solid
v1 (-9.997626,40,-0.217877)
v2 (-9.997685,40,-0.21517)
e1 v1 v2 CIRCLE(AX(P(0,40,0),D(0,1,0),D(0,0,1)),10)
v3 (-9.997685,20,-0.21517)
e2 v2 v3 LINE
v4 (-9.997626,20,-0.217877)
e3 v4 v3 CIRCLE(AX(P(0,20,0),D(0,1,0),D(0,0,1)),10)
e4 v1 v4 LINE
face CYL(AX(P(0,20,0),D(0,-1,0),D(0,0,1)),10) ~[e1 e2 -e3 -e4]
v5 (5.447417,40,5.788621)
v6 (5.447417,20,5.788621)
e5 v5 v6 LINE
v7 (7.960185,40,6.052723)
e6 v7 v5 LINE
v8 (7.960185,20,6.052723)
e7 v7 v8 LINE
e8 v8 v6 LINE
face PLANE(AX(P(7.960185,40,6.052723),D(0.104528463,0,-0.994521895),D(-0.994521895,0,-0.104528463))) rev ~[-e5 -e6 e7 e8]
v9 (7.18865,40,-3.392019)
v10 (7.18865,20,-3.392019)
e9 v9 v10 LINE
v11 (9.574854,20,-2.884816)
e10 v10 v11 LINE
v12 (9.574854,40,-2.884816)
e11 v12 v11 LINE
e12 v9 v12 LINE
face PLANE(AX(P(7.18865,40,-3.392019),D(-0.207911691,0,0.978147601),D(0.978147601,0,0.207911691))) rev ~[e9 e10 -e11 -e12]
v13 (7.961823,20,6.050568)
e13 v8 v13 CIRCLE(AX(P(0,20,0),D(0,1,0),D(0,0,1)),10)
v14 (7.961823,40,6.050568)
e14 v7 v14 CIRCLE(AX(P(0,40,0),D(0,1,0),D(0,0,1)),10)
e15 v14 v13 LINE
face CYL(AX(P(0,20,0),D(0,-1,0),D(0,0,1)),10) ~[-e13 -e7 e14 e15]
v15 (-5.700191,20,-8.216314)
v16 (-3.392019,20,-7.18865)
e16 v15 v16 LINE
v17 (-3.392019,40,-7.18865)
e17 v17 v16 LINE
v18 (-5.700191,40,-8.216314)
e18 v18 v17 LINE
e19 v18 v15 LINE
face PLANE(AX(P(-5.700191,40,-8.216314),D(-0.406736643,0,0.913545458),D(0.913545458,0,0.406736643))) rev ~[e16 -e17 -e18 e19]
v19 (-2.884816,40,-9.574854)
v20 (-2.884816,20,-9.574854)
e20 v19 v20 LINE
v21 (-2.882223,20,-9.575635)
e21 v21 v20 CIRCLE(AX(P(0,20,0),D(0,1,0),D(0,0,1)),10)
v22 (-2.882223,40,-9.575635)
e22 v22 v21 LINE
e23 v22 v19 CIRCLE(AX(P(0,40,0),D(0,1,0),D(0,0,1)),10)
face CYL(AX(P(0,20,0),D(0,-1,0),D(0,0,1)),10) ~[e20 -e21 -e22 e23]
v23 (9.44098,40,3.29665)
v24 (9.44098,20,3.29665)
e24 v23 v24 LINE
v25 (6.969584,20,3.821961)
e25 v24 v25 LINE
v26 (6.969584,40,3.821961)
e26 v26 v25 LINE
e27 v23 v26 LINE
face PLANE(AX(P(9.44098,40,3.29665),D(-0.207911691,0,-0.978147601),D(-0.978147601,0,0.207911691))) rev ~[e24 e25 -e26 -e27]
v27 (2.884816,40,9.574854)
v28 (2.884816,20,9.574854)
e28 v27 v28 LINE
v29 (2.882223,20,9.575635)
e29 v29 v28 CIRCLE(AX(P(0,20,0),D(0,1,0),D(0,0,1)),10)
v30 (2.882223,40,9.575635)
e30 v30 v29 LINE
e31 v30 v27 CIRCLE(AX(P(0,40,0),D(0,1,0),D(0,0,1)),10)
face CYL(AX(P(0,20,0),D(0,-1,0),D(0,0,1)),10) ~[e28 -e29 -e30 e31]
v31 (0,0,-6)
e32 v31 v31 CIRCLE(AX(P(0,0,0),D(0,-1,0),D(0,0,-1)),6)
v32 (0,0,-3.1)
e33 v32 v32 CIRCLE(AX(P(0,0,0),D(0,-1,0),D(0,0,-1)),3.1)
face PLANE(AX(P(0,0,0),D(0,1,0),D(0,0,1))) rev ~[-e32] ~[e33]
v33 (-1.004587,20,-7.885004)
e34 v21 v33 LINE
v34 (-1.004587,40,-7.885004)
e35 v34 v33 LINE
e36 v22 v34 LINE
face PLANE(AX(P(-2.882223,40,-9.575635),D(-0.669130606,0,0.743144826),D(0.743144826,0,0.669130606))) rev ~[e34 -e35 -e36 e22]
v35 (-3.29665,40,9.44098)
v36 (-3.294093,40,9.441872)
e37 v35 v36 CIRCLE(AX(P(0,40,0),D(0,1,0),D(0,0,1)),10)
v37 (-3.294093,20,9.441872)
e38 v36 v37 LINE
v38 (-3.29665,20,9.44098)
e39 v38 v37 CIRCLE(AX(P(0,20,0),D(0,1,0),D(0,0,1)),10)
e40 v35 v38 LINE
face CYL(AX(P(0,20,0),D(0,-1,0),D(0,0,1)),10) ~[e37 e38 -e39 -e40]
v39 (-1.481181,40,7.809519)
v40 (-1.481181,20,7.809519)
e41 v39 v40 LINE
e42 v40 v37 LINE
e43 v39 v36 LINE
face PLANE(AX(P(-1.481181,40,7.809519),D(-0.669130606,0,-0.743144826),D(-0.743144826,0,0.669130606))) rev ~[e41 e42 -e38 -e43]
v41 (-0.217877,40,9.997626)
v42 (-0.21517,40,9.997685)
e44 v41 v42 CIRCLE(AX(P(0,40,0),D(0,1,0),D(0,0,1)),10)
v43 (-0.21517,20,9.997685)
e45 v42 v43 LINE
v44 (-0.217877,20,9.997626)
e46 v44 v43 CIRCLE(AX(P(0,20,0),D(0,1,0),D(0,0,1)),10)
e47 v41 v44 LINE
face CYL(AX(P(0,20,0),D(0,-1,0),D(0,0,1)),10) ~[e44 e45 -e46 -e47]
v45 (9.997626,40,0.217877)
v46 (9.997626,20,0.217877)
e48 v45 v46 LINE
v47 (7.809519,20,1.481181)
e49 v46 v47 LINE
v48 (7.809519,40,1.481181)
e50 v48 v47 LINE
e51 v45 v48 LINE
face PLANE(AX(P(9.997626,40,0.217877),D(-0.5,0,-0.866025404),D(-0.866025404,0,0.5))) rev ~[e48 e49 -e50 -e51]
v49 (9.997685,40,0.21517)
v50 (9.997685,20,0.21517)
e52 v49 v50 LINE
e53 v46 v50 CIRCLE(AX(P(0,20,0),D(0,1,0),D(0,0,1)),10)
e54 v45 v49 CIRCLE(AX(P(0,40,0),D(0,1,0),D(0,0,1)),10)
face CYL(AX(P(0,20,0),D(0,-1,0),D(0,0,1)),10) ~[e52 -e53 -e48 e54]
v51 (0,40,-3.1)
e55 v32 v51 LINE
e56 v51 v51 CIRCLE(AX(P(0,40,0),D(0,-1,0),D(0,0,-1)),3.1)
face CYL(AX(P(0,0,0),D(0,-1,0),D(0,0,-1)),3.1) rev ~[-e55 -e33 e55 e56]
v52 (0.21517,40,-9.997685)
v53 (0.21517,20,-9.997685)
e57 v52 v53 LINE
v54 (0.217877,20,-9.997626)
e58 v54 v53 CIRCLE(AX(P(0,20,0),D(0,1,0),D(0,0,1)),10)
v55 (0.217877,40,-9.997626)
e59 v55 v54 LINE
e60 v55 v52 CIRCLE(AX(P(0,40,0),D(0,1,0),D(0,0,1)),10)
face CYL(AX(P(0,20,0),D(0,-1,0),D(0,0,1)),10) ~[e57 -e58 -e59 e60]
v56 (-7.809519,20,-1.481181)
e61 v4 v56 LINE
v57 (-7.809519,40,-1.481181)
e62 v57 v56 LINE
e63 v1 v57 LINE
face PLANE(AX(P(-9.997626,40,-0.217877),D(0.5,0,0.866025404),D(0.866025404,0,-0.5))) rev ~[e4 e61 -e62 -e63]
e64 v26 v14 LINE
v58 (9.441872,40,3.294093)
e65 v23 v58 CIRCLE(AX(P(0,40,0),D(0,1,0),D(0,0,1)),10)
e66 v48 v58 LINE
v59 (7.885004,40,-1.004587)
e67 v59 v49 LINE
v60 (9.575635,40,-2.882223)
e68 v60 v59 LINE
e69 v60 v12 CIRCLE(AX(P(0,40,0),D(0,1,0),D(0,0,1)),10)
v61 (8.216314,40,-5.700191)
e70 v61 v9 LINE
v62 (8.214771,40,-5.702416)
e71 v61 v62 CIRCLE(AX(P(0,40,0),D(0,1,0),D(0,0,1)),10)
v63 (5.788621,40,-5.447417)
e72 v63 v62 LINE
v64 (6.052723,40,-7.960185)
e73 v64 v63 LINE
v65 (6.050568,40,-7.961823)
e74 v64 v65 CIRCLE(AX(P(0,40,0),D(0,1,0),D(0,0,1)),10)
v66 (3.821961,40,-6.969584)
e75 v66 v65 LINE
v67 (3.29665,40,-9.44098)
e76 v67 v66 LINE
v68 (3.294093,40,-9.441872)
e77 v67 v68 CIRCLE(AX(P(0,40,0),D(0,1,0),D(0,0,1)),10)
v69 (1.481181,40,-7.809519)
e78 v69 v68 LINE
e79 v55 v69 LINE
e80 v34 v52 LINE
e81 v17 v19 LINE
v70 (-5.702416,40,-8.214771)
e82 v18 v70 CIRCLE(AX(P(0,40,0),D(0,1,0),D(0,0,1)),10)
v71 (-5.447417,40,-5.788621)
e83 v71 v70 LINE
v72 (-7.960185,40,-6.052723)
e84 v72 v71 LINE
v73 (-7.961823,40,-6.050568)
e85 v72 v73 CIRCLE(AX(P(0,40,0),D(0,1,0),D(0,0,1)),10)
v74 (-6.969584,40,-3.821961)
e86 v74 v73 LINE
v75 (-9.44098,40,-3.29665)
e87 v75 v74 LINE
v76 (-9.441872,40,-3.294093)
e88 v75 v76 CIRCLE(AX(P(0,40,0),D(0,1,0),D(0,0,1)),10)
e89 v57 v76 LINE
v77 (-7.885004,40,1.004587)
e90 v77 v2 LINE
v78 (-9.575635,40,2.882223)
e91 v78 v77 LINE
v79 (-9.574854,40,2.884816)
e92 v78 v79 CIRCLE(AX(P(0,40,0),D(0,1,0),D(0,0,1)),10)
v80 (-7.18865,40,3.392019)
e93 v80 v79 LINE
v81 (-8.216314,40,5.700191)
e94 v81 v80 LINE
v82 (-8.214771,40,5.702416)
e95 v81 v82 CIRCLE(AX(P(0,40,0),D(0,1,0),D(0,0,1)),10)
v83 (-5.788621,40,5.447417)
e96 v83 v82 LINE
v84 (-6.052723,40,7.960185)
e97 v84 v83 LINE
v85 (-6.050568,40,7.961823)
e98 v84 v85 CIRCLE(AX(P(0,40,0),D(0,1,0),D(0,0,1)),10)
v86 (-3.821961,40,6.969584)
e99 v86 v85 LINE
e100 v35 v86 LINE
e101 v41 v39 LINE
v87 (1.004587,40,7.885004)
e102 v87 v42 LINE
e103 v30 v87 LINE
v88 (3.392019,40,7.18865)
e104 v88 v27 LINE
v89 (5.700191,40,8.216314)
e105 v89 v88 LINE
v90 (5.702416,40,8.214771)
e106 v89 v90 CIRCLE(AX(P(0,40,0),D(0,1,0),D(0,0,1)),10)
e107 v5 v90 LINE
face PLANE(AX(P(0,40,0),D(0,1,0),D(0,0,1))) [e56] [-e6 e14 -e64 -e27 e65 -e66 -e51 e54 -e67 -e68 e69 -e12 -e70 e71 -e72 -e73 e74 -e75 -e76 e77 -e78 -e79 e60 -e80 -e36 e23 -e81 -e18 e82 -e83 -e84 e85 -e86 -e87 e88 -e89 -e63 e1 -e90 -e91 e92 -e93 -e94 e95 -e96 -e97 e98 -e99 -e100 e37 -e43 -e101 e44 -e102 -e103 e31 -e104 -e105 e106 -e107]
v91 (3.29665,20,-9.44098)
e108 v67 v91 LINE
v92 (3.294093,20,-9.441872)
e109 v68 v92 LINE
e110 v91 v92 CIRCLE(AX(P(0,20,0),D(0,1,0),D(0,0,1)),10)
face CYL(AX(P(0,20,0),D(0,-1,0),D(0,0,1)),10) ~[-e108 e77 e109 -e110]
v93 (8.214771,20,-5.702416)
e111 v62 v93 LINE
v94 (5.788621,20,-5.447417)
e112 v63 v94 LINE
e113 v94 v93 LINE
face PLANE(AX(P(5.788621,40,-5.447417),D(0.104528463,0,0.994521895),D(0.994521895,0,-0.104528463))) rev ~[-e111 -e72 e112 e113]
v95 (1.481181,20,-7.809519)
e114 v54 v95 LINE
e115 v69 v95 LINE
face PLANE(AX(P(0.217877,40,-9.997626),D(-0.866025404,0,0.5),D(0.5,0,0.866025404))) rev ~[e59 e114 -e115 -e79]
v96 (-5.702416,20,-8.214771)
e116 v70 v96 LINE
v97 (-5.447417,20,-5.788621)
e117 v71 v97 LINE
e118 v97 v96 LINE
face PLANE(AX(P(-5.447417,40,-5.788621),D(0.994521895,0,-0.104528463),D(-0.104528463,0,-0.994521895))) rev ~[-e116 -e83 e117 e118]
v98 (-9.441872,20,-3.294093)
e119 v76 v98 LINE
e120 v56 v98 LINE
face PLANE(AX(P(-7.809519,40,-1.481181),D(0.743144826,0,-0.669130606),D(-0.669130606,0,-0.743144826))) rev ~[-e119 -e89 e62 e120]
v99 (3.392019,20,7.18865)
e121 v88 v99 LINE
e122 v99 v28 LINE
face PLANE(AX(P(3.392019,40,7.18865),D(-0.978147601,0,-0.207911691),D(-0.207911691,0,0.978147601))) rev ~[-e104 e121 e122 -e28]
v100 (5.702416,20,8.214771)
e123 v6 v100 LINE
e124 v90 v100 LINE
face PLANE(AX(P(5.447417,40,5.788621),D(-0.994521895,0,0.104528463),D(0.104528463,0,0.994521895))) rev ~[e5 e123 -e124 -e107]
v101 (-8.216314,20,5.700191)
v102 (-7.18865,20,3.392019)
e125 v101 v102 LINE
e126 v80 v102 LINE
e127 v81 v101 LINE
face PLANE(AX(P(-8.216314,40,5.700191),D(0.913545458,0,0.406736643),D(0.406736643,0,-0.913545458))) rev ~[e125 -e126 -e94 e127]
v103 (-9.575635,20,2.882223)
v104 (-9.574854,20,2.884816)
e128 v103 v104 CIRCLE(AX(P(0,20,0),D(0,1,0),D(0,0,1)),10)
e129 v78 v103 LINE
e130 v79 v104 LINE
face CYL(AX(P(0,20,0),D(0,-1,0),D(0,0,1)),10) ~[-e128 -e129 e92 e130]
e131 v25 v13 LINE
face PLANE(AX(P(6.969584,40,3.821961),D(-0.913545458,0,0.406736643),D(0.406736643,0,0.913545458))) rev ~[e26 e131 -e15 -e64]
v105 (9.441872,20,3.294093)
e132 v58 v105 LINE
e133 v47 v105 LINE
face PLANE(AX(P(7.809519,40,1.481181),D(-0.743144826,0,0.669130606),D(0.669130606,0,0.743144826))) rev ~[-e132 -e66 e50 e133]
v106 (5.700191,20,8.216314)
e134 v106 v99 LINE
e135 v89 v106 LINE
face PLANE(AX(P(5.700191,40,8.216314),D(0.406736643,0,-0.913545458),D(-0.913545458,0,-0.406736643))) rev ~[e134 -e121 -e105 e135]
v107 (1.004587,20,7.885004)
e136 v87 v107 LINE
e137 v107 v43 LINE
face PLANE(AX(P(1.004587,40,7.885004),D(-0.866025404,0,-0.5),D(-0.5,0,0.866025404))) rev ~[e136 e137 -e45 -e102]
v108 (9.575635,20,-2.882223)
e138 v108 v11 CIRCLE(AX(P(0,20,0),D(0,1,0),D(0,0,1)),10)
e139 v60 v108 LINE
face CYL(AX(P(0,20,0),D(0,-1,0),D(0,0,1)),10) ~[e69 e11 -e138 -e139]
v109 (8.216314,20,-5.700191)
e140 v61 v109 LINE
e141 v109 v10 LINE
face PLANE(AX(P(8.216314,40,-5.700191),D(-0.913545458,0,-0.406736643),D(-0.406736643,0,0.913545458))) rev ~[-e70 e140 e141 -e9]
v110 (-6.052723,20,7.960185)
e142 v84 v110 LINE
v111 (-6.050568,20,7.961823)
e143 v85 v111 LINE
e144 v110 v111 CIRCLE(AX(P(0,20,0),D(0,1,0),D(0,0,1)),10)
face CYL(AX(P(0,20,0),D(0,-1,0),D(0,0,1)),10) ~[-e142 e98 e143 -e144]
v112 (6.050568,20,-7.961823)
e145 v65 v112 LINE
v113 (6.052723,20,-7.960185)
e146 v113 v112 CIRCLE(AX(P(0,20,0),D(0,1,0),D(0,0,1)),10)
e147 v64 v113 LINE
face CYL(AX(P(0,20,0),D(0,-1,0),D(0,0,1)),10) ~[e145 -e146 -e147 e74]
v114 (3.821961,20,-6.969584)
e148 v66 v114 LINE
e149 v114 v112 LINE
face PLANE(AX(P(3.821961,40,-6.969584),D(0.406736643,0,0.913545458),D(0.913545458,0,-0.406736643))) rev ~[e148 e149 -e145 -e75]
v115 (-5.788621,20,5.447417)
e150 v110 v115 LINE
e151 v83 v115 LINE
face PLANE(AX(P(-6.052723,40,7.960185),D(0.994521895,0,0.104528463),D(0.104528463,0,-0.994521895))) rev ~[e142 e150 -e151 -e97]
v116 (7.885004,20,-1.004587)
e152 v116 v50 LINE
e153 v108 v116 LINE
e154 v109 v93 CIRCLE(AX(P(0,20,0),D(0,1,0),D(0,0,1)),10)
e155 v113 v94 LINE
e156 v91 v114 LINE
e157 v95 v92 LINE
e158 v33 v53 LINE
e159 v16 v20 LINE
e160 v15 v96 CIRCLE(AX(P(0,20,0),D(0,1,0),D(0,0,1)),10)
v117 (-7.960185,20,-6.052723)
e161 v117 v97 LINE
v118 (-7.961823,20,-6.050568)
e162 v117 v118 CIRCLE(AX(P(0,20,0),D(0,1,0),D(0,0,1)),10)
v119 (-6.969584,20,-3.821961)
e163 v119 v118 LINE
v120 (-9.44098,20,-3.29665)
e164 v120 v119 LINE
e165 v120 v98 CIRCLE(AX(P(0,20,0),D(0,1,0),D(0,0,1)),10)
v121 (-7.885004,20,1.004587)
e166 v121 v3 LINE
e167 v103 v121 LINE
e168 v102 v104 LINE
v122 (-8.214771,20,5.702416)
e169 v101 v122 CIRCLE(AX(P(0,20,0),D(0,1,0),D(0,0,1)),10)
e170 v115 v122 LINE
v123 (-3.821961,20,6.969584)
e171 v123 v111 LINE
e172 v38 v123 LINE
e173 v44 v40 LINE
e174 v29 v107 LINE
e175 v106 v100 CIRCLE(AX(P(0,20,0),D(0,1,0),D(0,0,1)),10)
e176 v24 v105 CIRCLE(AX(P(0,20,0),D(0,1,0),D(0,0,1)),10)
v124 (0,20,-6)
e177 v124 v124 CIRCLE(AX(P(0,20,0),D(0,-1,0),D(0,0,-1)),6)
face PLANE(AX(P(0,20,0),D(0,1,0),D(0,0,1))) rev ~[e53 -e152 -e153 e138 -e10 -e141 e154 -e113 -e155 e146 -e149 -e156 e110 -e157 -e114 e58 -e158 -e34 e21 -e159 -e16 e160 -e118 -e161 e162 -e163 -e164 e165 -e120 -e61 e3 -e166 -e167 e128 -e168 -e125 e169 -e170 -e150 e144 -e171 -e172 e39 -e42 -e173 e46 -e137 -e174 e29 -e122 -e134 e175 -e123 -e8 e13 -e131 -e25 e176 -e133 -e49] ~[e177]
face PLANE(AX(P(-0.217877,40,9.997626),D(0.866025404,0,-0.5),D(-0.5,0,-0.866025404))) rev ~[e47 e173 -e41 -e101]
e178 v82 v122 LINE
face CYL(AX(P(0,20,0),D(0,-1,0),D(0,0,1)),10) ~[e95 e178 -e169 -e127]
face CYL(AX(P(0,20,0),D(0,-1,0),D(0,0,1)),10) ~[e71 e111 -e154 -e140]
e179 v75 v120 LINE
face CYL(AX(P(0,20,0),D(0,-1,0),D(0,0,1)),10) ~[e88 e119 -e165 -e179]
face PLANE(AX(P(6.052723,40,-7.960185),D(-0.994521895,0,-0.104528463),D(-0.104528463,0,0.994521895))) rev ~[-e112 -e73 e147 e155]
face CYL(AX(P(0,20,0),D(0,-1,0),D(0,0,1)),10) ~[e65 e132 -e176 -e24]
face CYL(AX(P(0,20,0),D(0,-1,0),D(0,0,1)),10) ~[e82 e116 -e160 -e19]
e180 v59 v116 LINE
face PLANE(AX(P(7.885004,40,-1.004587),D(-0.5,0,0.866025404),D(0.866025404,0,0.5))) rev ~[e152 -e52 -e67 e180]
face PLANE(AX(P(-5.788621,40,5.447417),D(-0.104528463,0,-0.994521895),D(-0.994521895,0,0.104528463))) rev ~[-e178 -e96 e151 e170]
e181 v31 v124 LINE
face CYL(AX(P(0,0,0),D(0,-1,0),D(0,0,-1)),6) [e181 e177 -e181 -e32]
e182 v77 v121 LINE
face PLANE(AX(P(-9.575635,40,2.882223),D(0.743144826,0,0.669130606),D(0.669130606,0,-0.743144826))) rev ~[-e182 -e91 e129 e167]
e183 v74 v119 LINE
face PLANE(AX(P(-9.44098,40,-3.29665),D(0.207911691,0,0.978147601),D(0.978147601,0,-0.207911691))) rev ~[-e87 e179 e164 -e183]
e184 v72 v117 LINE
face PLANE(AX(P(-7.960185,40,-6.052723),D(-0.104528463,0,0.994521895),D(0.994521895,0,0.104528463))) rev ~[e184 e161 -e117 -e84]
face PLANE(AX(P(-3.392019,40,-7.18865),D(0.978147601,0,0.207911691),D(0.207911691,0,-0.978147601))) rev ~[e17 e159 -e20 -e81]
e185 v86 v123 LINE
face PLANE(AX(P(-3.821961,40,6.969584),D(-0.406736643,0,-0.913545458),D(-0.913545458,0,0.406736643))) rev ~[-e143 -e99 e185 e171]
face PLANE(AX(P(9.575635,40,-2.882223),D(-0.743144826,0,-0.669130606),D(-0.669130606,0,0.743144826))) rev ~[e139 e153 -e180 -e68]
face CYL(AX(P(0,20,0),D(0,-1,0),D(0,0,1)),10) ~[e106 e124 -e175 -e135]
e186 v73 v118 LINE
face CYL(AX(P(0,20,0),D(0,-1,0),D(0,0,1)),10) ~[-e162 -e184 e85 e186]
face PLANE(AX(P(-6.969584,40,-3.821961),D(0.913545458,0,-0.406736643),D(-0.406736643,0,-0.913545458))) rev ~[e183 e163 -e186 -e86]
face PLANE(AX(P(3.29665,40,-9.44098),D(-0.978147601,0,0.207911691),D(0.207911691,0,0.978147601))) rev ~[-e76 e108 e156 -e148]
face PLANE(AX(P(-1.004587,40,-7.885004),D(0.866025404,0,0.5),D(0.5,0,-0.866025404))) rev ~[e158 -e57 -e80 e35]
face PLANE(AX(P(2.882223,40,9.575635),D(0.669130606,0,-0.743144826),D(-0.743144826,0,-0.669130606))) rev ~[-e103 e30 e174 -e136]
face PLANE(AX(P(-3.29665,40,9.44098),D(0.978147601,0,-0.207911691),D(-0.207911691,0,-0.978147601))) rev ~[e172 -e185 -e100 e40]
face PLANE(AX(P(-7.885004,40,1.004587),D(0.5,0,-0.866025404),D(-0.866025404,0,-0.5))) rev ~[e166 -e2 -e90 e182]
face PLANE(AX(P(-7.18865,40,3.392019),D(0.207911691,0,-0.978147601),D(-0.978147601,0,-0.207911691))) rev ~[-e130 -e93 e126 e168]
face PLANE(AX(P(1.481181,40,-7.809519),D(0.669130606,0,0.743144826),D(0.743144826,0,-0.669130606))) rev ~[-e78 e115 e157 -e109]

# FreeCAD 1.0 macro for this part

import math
import FreeCAD as App
import Part
import Sketcher

V = App.Vector
Q = App.Units.Quantity

doc = App.newDocument("Part")
body = doc.addObject("PartDesign::Body", "Body")

sketch1 = doc.addObject("Sketcher::SketchObject", "Sketch")
body.addObject(sketch1)
sketch1.AttachmentSupport = (doc.XZ_Plane, [""])
sketch1.MapMode = "FlatFace"
sketch1.addGeometry(Part.Circle(V(0, 0, 0), V(0, 0, 1), 7), False)
sketch1.addGeometry(Part.Circle(V(0, 0, 0), V(0, 0, 1), 3), False)
sketch1.addConstraint(Sketcher.Constraint("Coincident", 0, 3, -1, 1))
sketch1.addConstraint(Sketcher.Constraint("Coincident", 1, 3, -1, 1))
sketch1.addConstraint(Sketcher.Constraint("Diameter", 0, 14.0))
sketch1.addConstraint(Sketcher.Constraint("Diameter", 1, 6.0))
pad1 = doc.addObject("PartDesign::Pad", "Pad")
body.addObject(pad1)
pad1.Profile = sketch1
pad1.Length = 20
pad1.Reversed = True

sketch2 = doc.addObject("Sketcher::SketchObject", "Sketch001")
body.addObject(sketch2)
sketch2.AttachmentSupport = (doc.XZ_Plane, [""])
sketch2.MapMode = "FlatFace"
sketch2.AttachmentOffset = App.Placement(V(0, 0, -20), App.Rotation())
sketch2.addGeometry(Part.Circle(V(0, 0, 0), V(0, 0, 1), 10), False)
sketch2.addGeometry(Part.Circle(V(0, 0, 0), V(0, 0, 1), 3), False)
sketch2.addConstraint(Sketcher.Constraint("Coincident", 0, 3, -1, 1))
sketch2.addConstraint(Sketcher.Constraint("Coincident", 1, 3, -1, 1))
sketch2.addConstraint(Sketcher.Constraint("Diameter", 0, 20.0))
sketch2.addConstraint(Sketcher.Constraint("Diameter", 1, 6.0))
pad2 = doc.addObject("PartDesign::Pad", "Pad001")
body.addObject(pad2)
pad2.Profile = sketch2
pad2.Length = 20
pad2.Reversed = True

sketch3 = doc.addObject("Sketcher::SketchObject", "Sketch002")
body.addObject(sketch3)
sketch3.AttachmentSupport = (doc.XZ_Plane, [""])
sketch3.MapMode = "FlatFace"
sketch3.AttachmentOffset = App.Placement(V(0, 0, -40), App.Rotation())
sketch3.addGeometry(Part.LineSegment(V(1.481181, -7.809519, 0), V(3.294093, -9.441872, 0)), False)
sketch3.addGeometry(Part.ArcOfCircle(Part.Circle(V(0, 0, 0), V(0, 0, 1), 10), math.radians(-88.751559), math.radians(-70.767073)), False)
sketch3.addGeometry(Part.LineSegment(V(0.217877, -9.997626, 0), V(1.481181, -7.809519, 0)), False)
sketch3.addGeometry(Part.ArcOfCircle(Part.Circle(V(0, 0, 0), V(0, 0, 1), 10), math.radians(-70.751559), math.radians(-52.767073)), False)
sketch3.addGeometry(Part.LineSegment(V(3.29665, -9.44098, 0), V(3.821961, -6.969584, 0)), False)
sketch3.addGeometry(Part.LineSegment(V(3.821961, -6.969584, 0), V(6.050568, -7.961823, 0)), False)
sketch3.addGeometry(Part.LineSegment(V(-1.004587, -7.885004, 0), V(0.21517, -9.997685, 0)), False)
sketch3.addGeometry(Part.ArcOfCircle(Part.Circle(V(0, 0, 0), V(0, 0, 1), 10), math.radians(-106.751559), math.radians(-88.767073)), False)
sketch3.addGeometry(Part.LineSegment(V(-2.882223, -9.575635, 0), V(-1.004587, -7.885004, 0)), False)
sketch3.addGeometry(Part.ArcOfCircle(Part.Circle(V(0, 0, 0), V(0, 0, 1), 10), math.radians(-52.751559), math.radians(-34.767073)), False)
sketch3.addGeometry(Part.LineSegment(V(6.052723, -7.960185, 0), V(5.788621, -5.447417, 0)), False)
sketch3.addGeometry(Part.LineSegment(V(5.788621, -5.447417, 0), V(8.214771, -5.702416, 0)), False)
sketch3.addGeometry(Part.LineSegment(V(-3.392019, -7.18865, 0), V(-2.884816, -9.574854, 0)), False)
sketch3.addGeometry(Part.ArcOfCircle(Part.Circle(V(0, 0, 0), V(0, 0, 1), 10), math.radians(-124.751559), math.radians(-106.767073)), False)
sketch3.addGeometry(Part.LineSegment(V(-5.700191, -8.216314, 0), V(-3.392019, -7.18865, 0)), False)
sketch3.addGeometry(Part.ArcOfCircle(Part.Circle(V(0, 0, 0), V(0, 0, 1), 10), math.radians(-34.751559), math.radians(-16.767073)), False)
sketch3.addGeometry(Part.LineSegment(V(8.216314, -5.700191, 0), V(7.18865, -3.392019, 0)), False)
sketch3.addGeometry(Part.LineSegment(V(7.18865, -3.392019, 0), V(9.574854, -2.884816, 0)), False)
sketch3.addGeometry(Part.LineSegment(V(-5.447417, -5.788621, 0), V(-5.702416, -8.214771, 0)), False)
sketch3.addGeometry(Part.ArcOfCircle(Part.Circle(V(0, 0, 0), V(0, 0, 1), 10), math.radians(-142.751559), math.radians(-124.767073)), False)
sketch3.addGeometry(Part.LineSegment(V(-7.960185, -6.052723, 0), V(-5.447417, -5.788621, 0)), False)
sketch3.addGeometry(Part.ArcOfCircle(Part.Circle(V(0, 0, 0), V(0, 0, 1), 10), math.radians(-16.751559), math.radians(1.232927)), False)
sketch3.addGeometry(Part.LineSegment(V(9.575635, -2.882223, 0), V(7.885004, -1.004587, 0)), False)
sketch3.addGeometry(Part.LineSegment(V(7.885004, -1.004587, 0), V(9.997685, 0.21517, 0)), False)
sketch3.addGeometry(Part.LineSegment(V(-6.969584, -3.821961, 0), V(-7.961823, -6.050568, 0)), False)
sketch3.addGeometry(Part.ArcOfCircle(Part.Circle(V(0, 0, 0), V(0, 0, 1), 10), math.radians(-160.751559), math.radians(-142.767073)), False)
sketch3.addGeometry(Part.LineSegment(V(-9.44098, -3.29665, 0), V(-6.969584, -3.821961, 0)), False)
sketch3.addGeometry(Part.ArcOfCircle(Part.Circle(V(0, 0, 0), V(0, 0, 1), 10), math.radians(1.248441), math.radians(19.232927)), False)
sketch3.addGeometry(Part.LineSegment(V(9.997626, 0.217877, 0), V(7.809519, 1.481181, 0)), False)
sketch3.addGeometry(Part.LineSegment(V(7.809519, 1.481181, 0), V(9.441872, 3.294093, 0)), False)
sketch3.addGeometry(Part.LineSegment(V(-7.809519, -1.481181, 0), V(-9.441872, -3.294093, 0)), False)
sketch3.addGeometry(Part.ArcOfCircle(Part.Circle(V(0, 0, 0), V(0, 0, 1), 10), math.radians(-178.751559), math.radians(-160.767073)), False)
sketch3.addGeometry(Part.LineSegment(V(-9.997626, -0.217877, 0), V(-7.809519, -1.481181, 0)), False)
sketch3.addGeometry(Part.ArcOfCircle(Part.Circle(V(0, 0, 0), V(0, 0, 1), 10), math.radians(19.248441), math.radians(37.232927)), False)
sketch3.addGeometry(Part.LineSegment(V(9.44098, 3.29665, 0), V(6.969584, 3.821961, 0)), False)
sketch3.addGeometry(Part.LineSegment(V(6.969584, 3.821961, 0), V(7.961823, 6.050568, 0)), False)
sketch3.addGeometry(Part.LineSegment(V(-7.885004, 1.004587, 0), V(-9.997685, -0.21517, 0)), False)
sketch3.addGeometry(Part.ArcOfCircle(Part.Circle(V(0, 0, 0), V(0, 0, 1), 10), math.radians(163.248441), math.radians(181.232927)), False)
sketch3.addGeometry(Part.LineSegment(V(-9.575635, 2.882223, 0), V(-7.885004, 1.004587, 0)), False)
sketch3.addGeometry(Part.ArcOfCircle(Part.Circle(V(0, 0, 0), V(0, 0, 1), 10), math.radians(37.248441), math.radians(55.232927)), False)
sketch3.addGeometry(Part.LineSegment(V(7.960185, 6.052723, 0), V(5.447417, 5.788621, 0)), False)
sketch3.addGeometry(Part.LineSegment(V(5.447417, 5.788621, 0), V(5.702416, 8.214771, 0)), False)
sketch3.addGeometry(Part.LineSegment(V(-7.18865, 3.392019, 0), V(-9.574854, 2.884816, 0)), False)
sketch3.addGeometry(Part.ArcOfCircle(Part.Circle(V(0, 0, 0), V(0, 0, 1), 10), math.radians(145.248441), math.radians(163.232927)), False)
sketch3.addGeometry(Part.LineSegment(V(-8.216314, 5.700191, 0), V(-7.18865, 3.392019, 0)), False)
sketch3.addGeometry(Part.ArcOfCircle(Part.Circle(V(0, 0, 0), V(0, 0, 1), 10), math.radians(55.248441), math.radians(73.232927)), False)
sketch3.addGeometry(Part.LineSegment(V(5.700191, 8.216314, 0), V(3.392019, 7.18865, 0)), False)
sketch3.addGeometry(Part.LineSegment(V(3.392019, 7.18865, 0), V(2.884816, 9.574854, 0)), False)
sketch3.addGeometry(Part.LineSegment(V(-5.788621, 5.447417, 0), V(-8.214771, 5.702416, 0)), False)
sketch3.addGeometry(Part.ArcOfCircle(Part.Circle(V(0, 0, 0), V(0, 0, 1), 10), math.radians(127.248441), math.radians(145.232927)), False)
sketch3.addGeometry(Part.LineSegment(V(-6.052723, 7.960185, 0), V(-5.788621, 5.447417, 0)), False)
sketch3.addGeometry(Part.ArcOfCircle(Part.Circle(V(0, 0, 0), V(0, 0, 1), 10), math.radians(73.248441), math.radians(91.232927)), False)
sketch3.addGeometry(Part.LineSegment(V(2.882223, 9.575635, 0), V(1.004587, 7.885004, 0)), False)
sketch3.addGeometry(Part.LineSegment(V(1.004587, 7.885004, 0), V(-0.21517, 9.997685, 0)), False)
sketch3.addGeometry(Part.LineSegment(V(-3.821961, 6.969584, 0), V(-6.050568, 7.961823, 0)), False)
sketch3.addGeometry(Part.ArcOfCircle(Part.Circle(V(0, 0, 0), V(0, 0, 1), 10), math.radians(109.248441), math.radians(127.232927)), False)
sketch3.addGeometry(Part.LineSegment(V(-3.29665, 9.44098, 0), V(-3.821961, 6.969584, 0)), False)
sketch3.addGeometry(Part.ArcOfCircle(Part.Circle(V(0, 0, 0), V(0, 0, 1), 10), math.radians(91.248441), math.radians(109.232927)), False)
sketch3.addGeometry(Part.LineSegment(V(-0.217877, 9.997626, 0), V(-1.481181, 7.809519, 0)), False)
sketch3.addGeometry(Part.LineSegment(V(-1.481181, 7.809519, 0), V(-3.294093, 9.441872, 0)), False)
sketch3.addConstraint(Sketcher.Constraint("Coincident", 0, 2, 1, 2))
sketch3.addConstraint(Sketcher.Constraint("Coincident", 1, 1, 2, 1))
sketch3.addConstraint(Sketcher.Constraint("Coincident", 2, 2, 0, 1))
sketch3.addConstraint(Sketcher.Constraint("Coincident", 3, 1, 4, 1))
sketch3.addConstraint(Sketcher.Constraint("Coincident", 4, 2, 5, 1))
sketch3.addConstraint(Sketcher.Constraint("Coincident", 5, 2, 3, 2))
sketch3.addConstraint(Sketcher.Constraint("Coincident", 6, 2, 7, 2))
sketch3.addConstraint(Sketcher.Constraint("Coincident", 7, 1, 8, 1))
sketch3.addConstraint(Sketcher.Constraint("Coincident", 8, 2, 6, 1))
sketch3.addConstraint(Sketcher.Constraint("Coincident", 9, 1, 10, 1))
sketch3.addConstraint(Sketcher.Constraint("Coincident", 10, 2, 11, 1))
sketch3.addConstraint(Sketcher.Constraint("Coincident", 11, 2, 9, 2))
sketch3.addConstraint(Sketcher.Constraint("Coincident", 12, 2, 13, 2))
sketch3.addConstraint(Sketcher.Constraint("Coincident", 13, 1, 14, 1))
sketch3.addConstraint(Sketcher.Constraint("Coincident", 14, 2, 12, 1))
sketch3.addConstraint(Sketcher.Constraint("Coincident", 15, 1, 16, 1))
sketch3.addConstraint(Sketcher.Constraint("Coincident", 16, 2, 17, 1))
sketch3.addConstraint(Sketcher.Constraint("Coincident", 17, 2, 15, 2))
sketch3.addConstraint(Sketcher.Constraint("Coincident", 18, 2, 19, 2))
sketch3.addConstraint(Sketcher.Constraint("Coincident", 19, 1, 20, 1))
sketch3.addConstraint(Sketcher.Constraint("Coincident", 20, 2, 18, 1))
sketch3.addConstraint(Sketcher.Constraint("Coincident", 21, 1, 22, 1))
sketch3.addConstraint(Sketcher.Constraint("Coincident", 22, 2, 23, 1))
sketch3.addConstraint(Sketcher.Constraint("Coincident", 23, 2, 21, 2))
sketch3.addConstraint(Sketcher.Constraint("Coincident", 24, 2, 25, 2))
sketch3.addConstraint(Sketcher.Constraint("Coincident", 25, 1, 26, 1))
sketch3.addConstraint(Sketcher.Constraint("Coincident", 26, 2, 24, 1))
sketch3.addConstraint(Sketcher.Constraint("Coincident", 27, 1, 28, 1))
sketch3.addConstraint(Sketcher.Constraint("Coincident", 28, 2, 29, 1))
sketch3.addConstraint(Sketcher.Constraint("Coincident", 29, 2, 27, 2))
sketch3.addConstraint(Sketcher.Constraint("Coincident", 30, 2, 31, 2))
sketch3.addConstraint(Sketcher.Constraint("Coincident", 31, 1, 32, 1))
sketch3.addConstraint(Sketcher.Constraint("Coincident", 32, 2, 30, 1))
sketch3.addConstraint(Sketcher.Constraint("Coincident", 33, 1, 34, 1))
sketch3.addConstraint(Sketcher.Constraint("Coincident", 34, 2, 35, 1))
sketch3.addConstraint(Sketcher.Constraint("Coincident", 35, 2, 33, 2))
sketch3.addConstraint(Sketcher.Constraint("Coincident", 36, 2, 37, 2))
sketch3.addConstraint(Sketcher.Constraint("Coincident", 37, 1, 38, 1))
sketch3.addConstraint(Sketcher.Constraint("Coincident", 38, 2, 36, 1))
sketch3.addConstraint(Sketcher.Constraint("Coincident", 39, 1, 40, 1))
sketch3.addConstraint(Sketcher.Constraint("Coincident", 40, 2, 41, 1))
sketch3.addConstraint(Sketcher.Constraint("Coincident", 41, 2, 39, 2))
sketch3.addConstraint(Sketcher.Constraint("Coincident", 42, 2, 43, 2))
sketch3.addConstraint(Sketcher.Constraint("Coincident", 43, 1, 44, 1))
sketch3.addConstraint(Sketcher.Constraint("Coincident", 44, 2, 42, 1))
sketch3.addConstraint(Sketcher.Constraint("Coincident", 45, 1, 46, 1))
sketch3.addConstraint(Sketcher.Constraint("Coincident", 46, 2, 47, 1))
sketch3.addConstraint(Sketcher.Constraint("Coincident", 47, 2, 45, 2))
sketch3.addConstraint(Sketcher.Constraint("Coincident", 48, 2, 49, 2))
sketch3.addConstraint(Sketcher.Constraint("Coincident", 49, 1, 50, 1))
sketch3.addConstraint(Sketcher.Constraint("Coincident", 50, 2, 48, 1))
sketch3.addConstraint(Sketcher.Constraint("Coincident", 51, 1, 52, 1))
sketch3.addConstraint(Sketcher.Constraint("Coincident", 52, 2, 53, 1))
sketch3.addConstraint(Sketcher.Constraint("Coincident", 53, 2, 51, 2))
sketch3.addConstraint(Sketcher.Constraint("Coincident", 54, 2, 55, 2))
sketch3.addConstraint(Sketcher.Constraint("Coincident", 55, 1, 56, 1))
sketch3.addConstraint(Sketcher.Constraint("Coincident", 56, 2, 54, 1))
sketch3.addConstraint(Sketcher.Constraint("Coincident", 57, 1, 58, 1))
sketch3.addConstraint(Sketcher.Constraint("Coincident", 58, 2, 59, 1))
sketch3.addConstraint(Sketcher.Constraint("Coincident", 59, 2, 57, 2))
sketch3.addConstraint(Sketcher.Constraint("Coincident", 1, 3, -1, 1))
sketch3.addConstraint(Sketcher.Constraint("Coincident", 3, 3, -1, 1))
sketch3.addConstraint(Sketcher.Constraint("Coincident", 7, 3, -1, 1))
sketch3.addConstraint(Sketcher.Constraint("Coincident", 9, 3, -1, 1))
sketch3.addConstraint(Sketcher.Constraint("Coincident", 13, 3, -1, 1))
sketch3.addConstraint(Sketcher.Constraint("Coincident", 15, 3, -1, 1))
sketch3.addConstraint(Sketcher.Constraint("Coincident", 19, 3, -1, 1))
sketch3.addConstraint(Sketcher.Constraint("Coincident", 21, 3, -1, 1))
sketch3.addConstraint(Sketcher.Constraint("Coincident", 25, 3, -1, 1))
sketch3.addConstraint(Sketcher.Constraint("Coincident", 27, 3, -1, 1))
sketch3.addConstraint(Sketcher.Constraint("Coincident", 31, 3, -1, 1))
sketch3.addConstraint(Sketcher.Constraint("Coincident", 33, 3, -1, 1))
sketch3.addConstraint(Sketcher.Constraint("Coincident", 37, 3, -1, 1))
sketch3.addConstraint(Sketcher.Constraint("Coincident", 39, 3, -1, 1))
sketch3.addConstraint(Sketcher.Constraint("Coincident", 43, 3, -1, 1))
sketch3.addConstraint(Sketcher.Constraint("Coincident", 45, 3, -1, 1))
sketch3.addConstraint(Sketcher.Constraint("Coincident", 49, 3, -1, 1))
sketch3.addConstraint(Sketcher.Constraint("Coincident", 51, 3, -1, 1))
sketch3.addConstraint(Sketcher.Constraint("Coincident", 55, 3, -1, 1))
sketch3.addConstraint(Sketcher.Constraint("Coincident", 57, 3, -1, 1))
sketch3.addConstraint(Sketcher.Constraint("Equal", 1, 3))
sketch3.addConstraint(Sketcher.Constraint("Equal", 3, 7))
sketch3.addConstraint(Sketcher.Constraint("Equal", 7, 9))
sketch3.addConstraint(Sketcher.Constraint("Equal", 9, 13))
sketch3.addConstraint(Sketcher.Constraint("Equal", 13, 15))
sketch3.addConstraint(Sketcher.Constraint("Equal", 15, 19))
sketch3.addConstraint(Sketcher.Constraint("Equal", 19, 21))
sketch3.addConstraint(Sketcher.Constraint("Equal", 21, 25))
sketch3.addConstraint(Sketcher.Constraint("Equal", 25, 27))
sketch3.addConstraint(Sketcher.Constraint("Equal", 27, 31))
sketch3.addConstraint(Sketcher.Constraint("Equal", 31, 33))
sketch3.addConstraint(Sketcher.Constraint("Equal", 33, 37))
sketch3.addConstraint(Sketcher.Constraint("Equal", 37, 39))
sketch3.addConstraint(Sketcher.Constraint("Equal", 39, 43))
sketch3.addConstraint(Sketcher.Constraint("Equal", 43, 45))
sketch3.addConstraint(Sketcher.Constraint("Equal", 45, 49))
sketch3.addConstraint(Sketcher.Constraint("Equal", 49, 51))
sketch3.addConstraint(Sketcher.Constraint("Equal", 51, 55))
sketch3.addConstraint(Sketcher.Constraint("Equal", 55, 57))
sketch3.addConstraint(Sketcher.Constraint("Symmetric", 28, 2, 32, 2, -1, 1))
sketch3.addConstraint(Sketcher.Constraint("Symmetric", 26, 2, 34, 2, -1, 1))
sketch3.addConstraint(Sketcher.Constraint("Symmetric", 22, 2, 38, 2, -1, 1))
sketch3.addConstraint(Sketcher.Constraint("Symmetric", 20, 2, 40, 2, -1, 1))
sketch3.addConstraint(Sketcher.Constraint("Symmetric", 16, 2, 44, 2, -1, 1))
sketch3.addConstraint(Sketcher.Constraint("Symmetric", 14, 2, 46, 2, -1, 1))
sketch3.addConstraint(Sketcher.Constraint("Symmetric", 10, 2, 50, 2, -1, 1))
sketch3.addConstraint(Sketcher.Constraint("Symmetric", 8, 2, 52, 2, -1, 1))
sketch3.addConstraint(Sketcher.Constraint("Symmetric", 4, 2, 56, 2, -1, 1))
sketch3.addConstraint(Sketcher.Constraint("Symmetric", 2, 2, 58, 2, -1, 1))
sketch3.addConstraint(Sketcher.Constraint("Perpendicular", 14, 16))
sketch3.addConstraint(Sketcher.Constraint("Perpendicular", 12, 17))
sketch3.addConstraint(Sketcher.Constraint("Perpendicular", 11, 18))
sketch3.addConstraint(Sketcher.Constraint("Perpendicular", 10, 20))
sketch3.addConstraint(Sketcher.Constraint("Perpendicular", 8, 22))
sketch3.addConstraint(Sketcher.Constraint("Perpendicular", 6, 23))
sketch3.addConstraint(Sketcher.Constraint("Perpendicular", 5, 24))
sketch3.addConstraint(Sketcher.Constraint("Perpendicular", 4, 26))
sketch3.addConstraint(Sketcher.Constraint("Perpendicular", 2, 28))
sketch3.addConstraint(Sketcher.Constraint("Perpendicular", 0, 29))
sketch3.addConstraint(Sketcher.Constraint("Parallel", 29, 30))
sketch3.addConstraint(Sketcher.Constraint("Parallel", 28, 32))
sketch3.addConstraint(Sketcher.Constraint("Parallel", 26, 34))
sketch3.addConstraint(Sketcher.Constraint("Parallel", 24, 35))
sketch3.addConstraint(Sketcher.Constraint("Parallel", 23, 36))
sketch3.addConstraint(Sketcher.Constraint("Parallel", 22, 38))
sketch3.addConstraint(Sketcher.Constraint("Parallel", 20, 40))
sketch3.addConstraint(Sketcher.Constraint("Parallel", 18, 41))
sketch3.addConstraint(Sketcher.Constraint("Parallel", 17, 42))
sketch3.addConstraint(Sketcher.Constraint("Parallel", 16, 44))
sketch3.addConstraint(Sketcher.Constraint("Perpendicular", 44, 46))
sketch3.addConstraint(Sketcher.Constraint("Perpendicular", 42, 47))
sketch3.addConstraint(Sketcher.Constraint("Perpendicular", 41, 48))
sketch3.addConstraint(Sketcher.Constraint("Perpendicular", 40, 50))
sketch3.addConstraint(Sketcher.Constraint("Perpendicular", 38, 52))
sketch3.addConstraint(Sketcher.Constraint("Perpendicular", 36, 53))
sketch3.addConstraint(Sketcher.Constraint("Perpendicular", 35, 54))
sketch3.addConstraint(Sketcher.Constraint("Perpendicular", 34, 56))
sketch3.addConstraint(Sketcher.Constraint("Perpendicular", 32, 58))
sketch3.addConstraint(Sketcher.Constraint("Perpendicular", 30, 59))
sketch3.addConstraint(Sketcher.Constraint("Equal", 2, 4))
sketch3.addConstraint(Sketcher.Constraint("Equal", 0, 5))
sketch3.addConstraint(Sketcher.Constraint("Equal", 5, 6))
sketch3.addConstraint(Sketcher.Constraint("Equal", 4, 8))
sketch3.addConstraint(Sketcher.Constraint("Equal", 8, 10))
sketch3.addConstraint(Sketcher.Constraint("Equal", 6, 11))
sketch3.addConstraint(Sketcher.Constraint("Equal", 11, 12))
sketch3.addConstraint(Sketcher.Constraint("Equal", 10, 14))
sketch3.addConstraint(Sketcher.Constraint("Equal", 14, 16))
sketch3.addConstraint(Sketcher.Constraint("Equal", 12, 17))
sketch3.addConstraint(Sketcher.Constraint("Equal", 17, 18))
sketch3.addConstraint(Sketcher.Constraint("Equal", 16, 20))
sketch3.addConstraint(Sketcher.Constraint("Equal", 20, 22))
sketch3.addConstraint(Sketcher.Constraint("Equal", 18, 23))
sketch3.addConstraint(Sketcher.Constraint("Equal", 23, 24))
sketch3.addConstraint(Sketcher.Constraint("Equal", 22, 26))
sketch3.addConstraint(Sketcher.Constraint("Equal", 26, 28))
sketch3.addConstraint(Sketcher.Constraint("Equal", 24, 29))
sketch3.addConstraint(Sketcher.Constraint("Radius", 1, 10.0))
sketch3.addConstraint(Sketcher.Constraint("Angle", 0, Q("-42 deg")))
sketch3.addConstraint(Sketcher.Constraint("Angle", 2, Q("60 deg")))
sketch3.addConstraint(Sketcher.Constraint("Angle", 4, Q("78 deg")))
sketch3.addConstraint(Sketcher.Constraint("Angle", 5, Q("-24 deg")))
sketch3.addConstraint(Sketcher.Constraint("Angle", 6, Q("-60 deg")))
sketch3.addConstraint(Sketcher.Constraint("Angle", 8, Q("42 deg")))
sketch3.addConstraint(Sketcher.Constraint("Angle", 10, Q("96 deg")))
sketch3.addConstraint(Sketcher.Constraint("Angle", 11, Q("-6 deg")))
sketch3.addConstraint(Sketcher.Constraint("Angle", 12, Q("-78 deg")))
sketch3.addConstraint(Sketcher.Constraint("Angle", 14, Q("24 deg")))
sketch3.addConstraint(Sketcher.Constraint("Distance", 2, 2.526609))
sketch3.addConstraint(Sketcher.Constraint("DistanceX", -1, 1, 2, 2, 1.481181))
pocket1 = doc.addObject("PartDesign::Pocket", "Pocket")
body.addObject(pocket1)
pocket1.Profile = sketch3
pocket1.Length = 20
pocket1.Reversed = True

sketch4 = doc.addObject("Sketcher::SketchObject", "Sketch003")
body.addObject(sketch4)
sketch4.AttachmentSupport = (doc.XZ_Plane, [""])
sketch4.MapMode = "FlatFace"
sketch4.addGeometry(Part.Circle(V(-3.244662, -1.192158, 0), V(0, 0, 1), 21.655225), False)
sketch4.addGeometry(Part.Circle(V(0, 0, 0), V(0, 0, 1), 6), False)
sketch4.addConstraint(Sketcher.Constraint("Coincident", 1, 3, -1, 1))
sketch4.addConstraint(Sketcher.Constraint("Diameter", 1, 12.0))
sketch4.addConstraint(Sketcher.Constraint("Diameter", 0, 43.310451))
sketch4.addConstraint(Sketcher.Constraint("DistanceX", 0, 3, -1, 1, 3.244662))
sketch4.addConstraint(Sketcher.Constraint("DistanceY", 0, 3, -1, 1, 1.192158))
pocket2 = doc.addObject("PartDesign::Pocket", "Pocket001")
body.addObject(pocket2)
pocket2.Profile = sketch4
pocket2.Length = 20

sketch5 = doc.addObject("Sketcher::SketchObject", "Sketch004")
body.addObject(sketch5)
sketch5.AttachmentSupport = (doc.XZ_Plane, [""])
sketch5.MapMode = "FlatFace"
sketch5.addGeometry(Part.Circle(V(0, 0, 0), V(0, 0, 1), 3.1), False)
sketch5.addConstraint(Sketcher.Constraint("Coincident", 0, 3, -1, 1))
sketch5.addConstraint(Sketcher.Constraint("Diameter", 0, 6.2))
pocket3 = doc.addObject("PartDesign::Pocket", "Pocket002")
body.addObject(pocket3)
pocket3.Profile = sketch5
pocket3.Length = 80

doc.recompute()
